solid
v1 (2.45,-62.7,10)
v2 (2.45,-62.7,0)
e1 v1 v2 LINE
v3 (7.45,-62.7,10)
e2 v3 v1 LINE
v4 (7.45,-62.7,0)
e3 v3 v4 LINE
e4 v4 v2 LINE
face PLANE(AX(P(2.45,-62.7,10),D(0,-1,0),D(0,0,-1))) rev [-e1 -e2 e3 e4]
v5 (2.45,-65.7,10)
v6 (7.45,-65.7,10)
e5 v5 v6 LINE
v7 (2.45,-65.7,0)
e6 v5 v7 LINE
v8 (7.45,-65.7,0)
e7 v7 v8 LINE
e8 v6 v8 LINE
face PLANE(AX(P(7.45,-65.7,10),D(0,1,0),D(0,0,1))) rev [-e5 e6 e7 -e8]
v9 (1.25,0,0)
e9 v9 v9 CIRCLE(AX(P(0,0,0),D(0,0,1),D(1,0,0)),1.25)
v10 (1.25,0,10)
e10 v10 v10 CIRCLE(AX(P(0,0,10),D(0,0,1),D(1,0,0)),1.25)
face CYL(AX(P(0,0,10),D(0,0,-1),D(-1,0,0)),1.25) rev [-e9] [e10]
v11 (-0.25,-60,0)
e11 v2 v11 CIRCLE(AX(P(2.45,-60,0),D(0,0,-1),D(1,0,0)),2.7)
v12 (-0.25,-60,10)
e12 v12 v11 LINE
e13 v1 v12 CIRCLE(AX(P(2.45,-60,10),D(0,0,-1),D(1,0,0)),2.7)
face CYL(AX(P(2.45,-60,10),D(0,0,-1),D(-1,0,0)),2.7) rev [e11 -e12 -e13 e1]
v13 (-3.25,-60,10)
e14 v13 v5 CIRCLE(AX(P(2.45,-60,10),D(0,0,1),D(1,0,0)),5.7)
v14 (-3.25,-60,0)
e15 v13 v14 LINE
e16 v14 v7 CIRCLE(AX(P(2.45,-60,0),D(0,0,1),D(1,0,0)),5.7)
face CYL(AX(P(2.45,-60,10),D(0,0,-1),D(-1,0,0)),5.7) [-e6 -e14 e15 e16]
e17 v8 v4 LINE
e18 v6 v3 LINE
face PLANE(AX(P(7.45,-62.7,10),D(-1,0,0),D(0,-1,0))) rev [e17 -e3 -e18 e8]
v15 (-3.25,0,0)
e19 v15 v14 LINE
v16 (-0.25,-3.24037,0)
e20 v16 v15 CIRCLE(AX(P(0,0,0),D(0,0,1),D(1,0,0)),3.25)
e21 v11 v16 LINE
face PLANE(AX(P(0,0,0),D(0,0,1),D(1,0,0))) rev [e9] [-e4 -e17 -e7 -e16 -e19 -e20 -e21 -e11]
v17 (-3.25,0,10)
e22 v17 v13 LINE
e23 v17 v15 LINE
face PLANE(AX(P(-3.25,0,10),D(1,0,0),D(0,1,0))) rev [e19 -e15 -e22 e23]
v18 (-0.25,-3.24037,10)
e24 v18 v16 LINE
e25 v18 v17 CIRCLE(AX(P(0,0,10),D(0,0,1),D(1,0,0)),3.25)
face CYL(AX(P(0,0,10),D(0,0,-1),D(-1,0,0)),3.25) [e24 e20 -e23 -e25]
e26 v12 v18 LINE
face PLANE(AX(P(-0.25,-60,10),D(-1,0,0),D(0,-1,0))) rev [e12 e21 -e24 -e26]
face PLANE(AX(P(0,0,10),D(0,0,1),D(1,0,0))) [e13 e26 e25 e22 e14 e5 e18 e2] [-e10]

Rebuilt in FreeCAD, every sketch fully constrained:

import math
import FreeCAD as App
import Part
import Sketcher
Q = App.Units.Quantity

doc = App.newDocument("Part")
params = doc.addObject("Spreadsheet::Sheet", "Params")
for row, (alias, value) in enumerate([
    ("sketch1_diameter", "2.5 mm"),
    ("sketch1_radius", "5.7 mm"),
    ("sketch1_radius2", "2.7 mm"),
    ("sketch1_width", "5 mm"),
    ("sketch1_height", "60 mm"),
    ("pad1_length", "10 mm"),
], start=1):
    params.set(f"A{row}", alias)
    params.set(f"B{row}", "=" + value)
    params.setAlias(f"B{row}", alias)

body = doc.addObject("PartDesign::Body", "Body")

sketch1 = doc.addObject("Sketcher::SketchObject", "Sketch")
body.addObject(sketch1)
sketch1.AttachmentSupport = (doc.XY_Plane, [""])
sketch1.MapMode = "FlatFace"
sketch1.addGeometry([
    Part.LineSegment(App.Vector(-3.2, 0, 0), App.Vector(-3.2, -60, 0)),
    Part.ArcOfCircle(Part.Circle(App.Vector(2.4, -60, 0), App.Vector(0, 0, 1), 5.7), math.radians(180), math.radians(270)),
    Part.LineSegment(App.Vector(2.5, -65.7, 0), App.Vector(7.5, -65.7, 0)),
    Part.LineSegment(App.Vector(7.5, -65.7, 0), App.Vector(7.5, -62.7, 0)),
    Part.LineSegment(App.Vector(7.5, -62.7, 0), App.Vector(2.5, -62.7, 0)),
    Part.ArcOfCircle(Part.Circle(App.Vector(2.5, -60, 0), App.Vector(0, 0, 1), 2.7), math.radians(-180), math.radians(-90)),
    Part.LineSegment(App.Vector(-0.2, -60, 0), App.Vector(-0.2, -3.2, 0)),
    Part.ArcOfCircle(Part.Circle(App.Vector(0, 0, 0), App.Vector(0, 0, 1), 3.2), math.radians(-94), math.radians(180)),
    Part.Circle(App.Vector(0, 0, 0), App.Vector(0, 0, 1), 1.2),
], False)
sketch1.addConstraint([
    Sketcher.Constraint("Tangent", 0, 2, 1, 1),
    Sketcher.Constraint("Tangent", 1, 2, 2, 1),
    Sketcher.Constraint("Coincident", 2, 2, 3, 1),
    Sketcher.Constraint("Coincident", 3, 2, 4, 1),
    Sketcher.Constraint("Tangent", 4, 2, 5, 2),
    Sketcher.Constraint("Tangent", 5, 1, 6, 1),
    Sketcher.Constraint("Coincident", 6, 2, 7, 1),
    Sketcher.Constraint("Tangent", 7, 2, 0, 1),
    Sketcher.Constraint("Vertical", 0),
    Sketcher.Constraint("Horizontal", 2),
    Sketcher.Constraint("Vertical", 3),
    Sketcher.Constraint("Horizontal", 4),
    Sketcher.Constraint("Vertical", 6),
    Sketcher.Constraint("Coincident", 7, 3, -1, 1),
    Sketcher.Constraint("Coincident", 8, 3, -1, 1),
    Sketcher.Constraint("Coincident", 5, 3, 1, 3),
    Sketcher.Constraint("Diameter", 8, Q("2.5 mm")),
    Sketcher.Constraint("Radius", 1, Q("5.7 mm")),
    Sketcher.Constraint("Radius", 5, Q("2.7 mm")),
    Sketcher.Constraint("DistanceX", 2, 1, 2, 2, Q("5 mm")),
    Sketcher.Constraint("DistanceY", 0, 2, 0, 1, Q("60 mm")),
    Sketcher.Constraint("Radius", 7, Q("3.25 mm")),
])
sketch1.setExpression("Constraints[16]", "Params.sketch1_diameter")
sketch1.setExpression("Constraints[17]", "Params.sketch1_radius")
sketch1.setExpression("Constraints[18]", "Params.sketch1_radius2")
sketch1.setExpression("Constraints[19]", "Params.sketch1_width")
sketch1.setExpression("Constraints[20]", "Params.sketch1_height")
pad1 = doc.addObject("PartDesign::Pad", "Pad")
body.addObject(pad1)
pad1.Profile = sketch1
pad1.setExpression("Length", "Params.pad1_length")

doc.recompute()
